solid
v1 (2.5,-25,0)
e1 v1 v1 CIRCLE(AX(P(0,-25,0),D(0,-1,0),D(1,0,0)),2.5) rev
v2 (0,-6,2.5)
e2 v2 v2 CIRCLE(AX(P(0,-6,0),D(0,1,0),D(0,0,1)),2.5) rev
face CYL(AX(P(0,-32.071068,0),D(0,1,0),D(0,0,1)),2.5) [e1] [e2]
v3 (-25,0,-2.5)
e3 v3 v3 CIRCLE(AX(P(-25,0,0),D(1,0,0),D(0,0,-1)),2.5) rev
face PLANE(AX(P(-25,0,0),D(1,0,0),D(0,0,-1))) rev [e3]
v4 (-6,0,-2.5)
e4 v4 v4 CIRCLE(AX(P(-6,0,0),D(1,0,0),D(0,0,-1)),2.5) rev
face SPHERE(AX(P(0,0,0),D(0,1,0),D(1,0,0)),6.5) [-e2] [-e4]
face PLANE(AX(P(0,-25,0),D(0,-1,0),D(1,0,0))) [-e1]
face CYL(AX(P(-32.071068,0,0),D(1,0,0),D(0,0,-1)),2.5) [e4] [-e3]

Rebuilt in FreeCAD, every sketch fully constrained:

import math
import FreeCAD as App
import Part
import Sketcher

doc = App.newDocument("Part")
body = doc.addObject("PartDesign::Body", "Body")

# Sketch on XY plane
sketch1 = body.newObject("Sketcher::SketchObject", "Sketch")
sketch1.AttachmentSupport = (doc.getObject("XY_Plane"), [""])
sketch1.MapMode = "FlatFace"
sketch1.addGeometry(Part.LineSegment(App.Vector(0, -6, 0), App.Vector(0, 6, 0)), False)
sketch1.addGeometry(Part.ArcOfCircle(Part.Circle(App.Vector(0, 0, 0), App.Vector(0, 0, 1), 6), math.radians(90), math.radians(270)), False)
sketch1.addConstraint(Sketcher.Constraint("Coincident", 0, 1, 1, 2))
sketch1.addConstraint(Sketcher.Constraint("Coincident", 1, 1, 0, 2))
sketch1.addConstraint(Sketcher.Constraint("Vertical", 0))
sketch1.addConstraint(Sketcher.Constraint("Coincident", 1, 3, -1, 1))
sketch1.addConstraint(Sketcher.Constraint("PointOnObject", 0, 1, -2))
sketch1.addConstraint(Sketcher.Constraint("Radius", 1, 6.5))
revolution = body.newObject("PartDesign::Revolution", "Revolution")
revolution.Profile = sketch1
revolution.ReferenceAxis = (sketch1, ["V_Axis"])
revolution.Angle = 360

# Sketch on YZ plane
sketch2 = body.newObject("Sketcher::SketchObject", "Sketch001")
sketch2.AttachmentSupport = (doc.getObject("YZ_Plane"), [""])
sketch2.MapMode = "FlatFace"
sketch2.addGeometry(Part.Circle(App.Vector(0, 0, 0), App.Vector(0, 0, 1), 2.5), False)
sketch2.addConstraint(Sketcher.Constraint("Coincident", 0, 3, -1, 1))
sketch2.addConstraint(Sketcher.Constraint("Diameter", 0, 5.0))
pad1 = body.newObject("PartDesign::Pad", "Pad")
pad1.Profile = sketch2
pad1.Length = 25
pad1.Reversed = True

# Sketch on XZ plane
sketch3 = body.newObject("Sketcher::SketchObject", "Sketch002")
sketch3.AttachmentSupport = (doc.getObject("XZ_Plane"), [""])
sketch3.MapMode = "FlatFace"
sketch3.addGeometry(Part.Circle(App.Vector(0, 0, 0), App.Vector(0, 0, 1), 2.5), False)
sketch3.addConstraint(Sketcher.Constraint("Coincident", 0, 3, -1, 1))
sketch3.addConstraint(Sketcher.Constraint("Diameter", 0, 5.0))
pad2 = body.newObject("PartDesign::Pad", "Pad001")
pad2.Profile = sketch3
pad2.Length = 25

doc.recompute()
